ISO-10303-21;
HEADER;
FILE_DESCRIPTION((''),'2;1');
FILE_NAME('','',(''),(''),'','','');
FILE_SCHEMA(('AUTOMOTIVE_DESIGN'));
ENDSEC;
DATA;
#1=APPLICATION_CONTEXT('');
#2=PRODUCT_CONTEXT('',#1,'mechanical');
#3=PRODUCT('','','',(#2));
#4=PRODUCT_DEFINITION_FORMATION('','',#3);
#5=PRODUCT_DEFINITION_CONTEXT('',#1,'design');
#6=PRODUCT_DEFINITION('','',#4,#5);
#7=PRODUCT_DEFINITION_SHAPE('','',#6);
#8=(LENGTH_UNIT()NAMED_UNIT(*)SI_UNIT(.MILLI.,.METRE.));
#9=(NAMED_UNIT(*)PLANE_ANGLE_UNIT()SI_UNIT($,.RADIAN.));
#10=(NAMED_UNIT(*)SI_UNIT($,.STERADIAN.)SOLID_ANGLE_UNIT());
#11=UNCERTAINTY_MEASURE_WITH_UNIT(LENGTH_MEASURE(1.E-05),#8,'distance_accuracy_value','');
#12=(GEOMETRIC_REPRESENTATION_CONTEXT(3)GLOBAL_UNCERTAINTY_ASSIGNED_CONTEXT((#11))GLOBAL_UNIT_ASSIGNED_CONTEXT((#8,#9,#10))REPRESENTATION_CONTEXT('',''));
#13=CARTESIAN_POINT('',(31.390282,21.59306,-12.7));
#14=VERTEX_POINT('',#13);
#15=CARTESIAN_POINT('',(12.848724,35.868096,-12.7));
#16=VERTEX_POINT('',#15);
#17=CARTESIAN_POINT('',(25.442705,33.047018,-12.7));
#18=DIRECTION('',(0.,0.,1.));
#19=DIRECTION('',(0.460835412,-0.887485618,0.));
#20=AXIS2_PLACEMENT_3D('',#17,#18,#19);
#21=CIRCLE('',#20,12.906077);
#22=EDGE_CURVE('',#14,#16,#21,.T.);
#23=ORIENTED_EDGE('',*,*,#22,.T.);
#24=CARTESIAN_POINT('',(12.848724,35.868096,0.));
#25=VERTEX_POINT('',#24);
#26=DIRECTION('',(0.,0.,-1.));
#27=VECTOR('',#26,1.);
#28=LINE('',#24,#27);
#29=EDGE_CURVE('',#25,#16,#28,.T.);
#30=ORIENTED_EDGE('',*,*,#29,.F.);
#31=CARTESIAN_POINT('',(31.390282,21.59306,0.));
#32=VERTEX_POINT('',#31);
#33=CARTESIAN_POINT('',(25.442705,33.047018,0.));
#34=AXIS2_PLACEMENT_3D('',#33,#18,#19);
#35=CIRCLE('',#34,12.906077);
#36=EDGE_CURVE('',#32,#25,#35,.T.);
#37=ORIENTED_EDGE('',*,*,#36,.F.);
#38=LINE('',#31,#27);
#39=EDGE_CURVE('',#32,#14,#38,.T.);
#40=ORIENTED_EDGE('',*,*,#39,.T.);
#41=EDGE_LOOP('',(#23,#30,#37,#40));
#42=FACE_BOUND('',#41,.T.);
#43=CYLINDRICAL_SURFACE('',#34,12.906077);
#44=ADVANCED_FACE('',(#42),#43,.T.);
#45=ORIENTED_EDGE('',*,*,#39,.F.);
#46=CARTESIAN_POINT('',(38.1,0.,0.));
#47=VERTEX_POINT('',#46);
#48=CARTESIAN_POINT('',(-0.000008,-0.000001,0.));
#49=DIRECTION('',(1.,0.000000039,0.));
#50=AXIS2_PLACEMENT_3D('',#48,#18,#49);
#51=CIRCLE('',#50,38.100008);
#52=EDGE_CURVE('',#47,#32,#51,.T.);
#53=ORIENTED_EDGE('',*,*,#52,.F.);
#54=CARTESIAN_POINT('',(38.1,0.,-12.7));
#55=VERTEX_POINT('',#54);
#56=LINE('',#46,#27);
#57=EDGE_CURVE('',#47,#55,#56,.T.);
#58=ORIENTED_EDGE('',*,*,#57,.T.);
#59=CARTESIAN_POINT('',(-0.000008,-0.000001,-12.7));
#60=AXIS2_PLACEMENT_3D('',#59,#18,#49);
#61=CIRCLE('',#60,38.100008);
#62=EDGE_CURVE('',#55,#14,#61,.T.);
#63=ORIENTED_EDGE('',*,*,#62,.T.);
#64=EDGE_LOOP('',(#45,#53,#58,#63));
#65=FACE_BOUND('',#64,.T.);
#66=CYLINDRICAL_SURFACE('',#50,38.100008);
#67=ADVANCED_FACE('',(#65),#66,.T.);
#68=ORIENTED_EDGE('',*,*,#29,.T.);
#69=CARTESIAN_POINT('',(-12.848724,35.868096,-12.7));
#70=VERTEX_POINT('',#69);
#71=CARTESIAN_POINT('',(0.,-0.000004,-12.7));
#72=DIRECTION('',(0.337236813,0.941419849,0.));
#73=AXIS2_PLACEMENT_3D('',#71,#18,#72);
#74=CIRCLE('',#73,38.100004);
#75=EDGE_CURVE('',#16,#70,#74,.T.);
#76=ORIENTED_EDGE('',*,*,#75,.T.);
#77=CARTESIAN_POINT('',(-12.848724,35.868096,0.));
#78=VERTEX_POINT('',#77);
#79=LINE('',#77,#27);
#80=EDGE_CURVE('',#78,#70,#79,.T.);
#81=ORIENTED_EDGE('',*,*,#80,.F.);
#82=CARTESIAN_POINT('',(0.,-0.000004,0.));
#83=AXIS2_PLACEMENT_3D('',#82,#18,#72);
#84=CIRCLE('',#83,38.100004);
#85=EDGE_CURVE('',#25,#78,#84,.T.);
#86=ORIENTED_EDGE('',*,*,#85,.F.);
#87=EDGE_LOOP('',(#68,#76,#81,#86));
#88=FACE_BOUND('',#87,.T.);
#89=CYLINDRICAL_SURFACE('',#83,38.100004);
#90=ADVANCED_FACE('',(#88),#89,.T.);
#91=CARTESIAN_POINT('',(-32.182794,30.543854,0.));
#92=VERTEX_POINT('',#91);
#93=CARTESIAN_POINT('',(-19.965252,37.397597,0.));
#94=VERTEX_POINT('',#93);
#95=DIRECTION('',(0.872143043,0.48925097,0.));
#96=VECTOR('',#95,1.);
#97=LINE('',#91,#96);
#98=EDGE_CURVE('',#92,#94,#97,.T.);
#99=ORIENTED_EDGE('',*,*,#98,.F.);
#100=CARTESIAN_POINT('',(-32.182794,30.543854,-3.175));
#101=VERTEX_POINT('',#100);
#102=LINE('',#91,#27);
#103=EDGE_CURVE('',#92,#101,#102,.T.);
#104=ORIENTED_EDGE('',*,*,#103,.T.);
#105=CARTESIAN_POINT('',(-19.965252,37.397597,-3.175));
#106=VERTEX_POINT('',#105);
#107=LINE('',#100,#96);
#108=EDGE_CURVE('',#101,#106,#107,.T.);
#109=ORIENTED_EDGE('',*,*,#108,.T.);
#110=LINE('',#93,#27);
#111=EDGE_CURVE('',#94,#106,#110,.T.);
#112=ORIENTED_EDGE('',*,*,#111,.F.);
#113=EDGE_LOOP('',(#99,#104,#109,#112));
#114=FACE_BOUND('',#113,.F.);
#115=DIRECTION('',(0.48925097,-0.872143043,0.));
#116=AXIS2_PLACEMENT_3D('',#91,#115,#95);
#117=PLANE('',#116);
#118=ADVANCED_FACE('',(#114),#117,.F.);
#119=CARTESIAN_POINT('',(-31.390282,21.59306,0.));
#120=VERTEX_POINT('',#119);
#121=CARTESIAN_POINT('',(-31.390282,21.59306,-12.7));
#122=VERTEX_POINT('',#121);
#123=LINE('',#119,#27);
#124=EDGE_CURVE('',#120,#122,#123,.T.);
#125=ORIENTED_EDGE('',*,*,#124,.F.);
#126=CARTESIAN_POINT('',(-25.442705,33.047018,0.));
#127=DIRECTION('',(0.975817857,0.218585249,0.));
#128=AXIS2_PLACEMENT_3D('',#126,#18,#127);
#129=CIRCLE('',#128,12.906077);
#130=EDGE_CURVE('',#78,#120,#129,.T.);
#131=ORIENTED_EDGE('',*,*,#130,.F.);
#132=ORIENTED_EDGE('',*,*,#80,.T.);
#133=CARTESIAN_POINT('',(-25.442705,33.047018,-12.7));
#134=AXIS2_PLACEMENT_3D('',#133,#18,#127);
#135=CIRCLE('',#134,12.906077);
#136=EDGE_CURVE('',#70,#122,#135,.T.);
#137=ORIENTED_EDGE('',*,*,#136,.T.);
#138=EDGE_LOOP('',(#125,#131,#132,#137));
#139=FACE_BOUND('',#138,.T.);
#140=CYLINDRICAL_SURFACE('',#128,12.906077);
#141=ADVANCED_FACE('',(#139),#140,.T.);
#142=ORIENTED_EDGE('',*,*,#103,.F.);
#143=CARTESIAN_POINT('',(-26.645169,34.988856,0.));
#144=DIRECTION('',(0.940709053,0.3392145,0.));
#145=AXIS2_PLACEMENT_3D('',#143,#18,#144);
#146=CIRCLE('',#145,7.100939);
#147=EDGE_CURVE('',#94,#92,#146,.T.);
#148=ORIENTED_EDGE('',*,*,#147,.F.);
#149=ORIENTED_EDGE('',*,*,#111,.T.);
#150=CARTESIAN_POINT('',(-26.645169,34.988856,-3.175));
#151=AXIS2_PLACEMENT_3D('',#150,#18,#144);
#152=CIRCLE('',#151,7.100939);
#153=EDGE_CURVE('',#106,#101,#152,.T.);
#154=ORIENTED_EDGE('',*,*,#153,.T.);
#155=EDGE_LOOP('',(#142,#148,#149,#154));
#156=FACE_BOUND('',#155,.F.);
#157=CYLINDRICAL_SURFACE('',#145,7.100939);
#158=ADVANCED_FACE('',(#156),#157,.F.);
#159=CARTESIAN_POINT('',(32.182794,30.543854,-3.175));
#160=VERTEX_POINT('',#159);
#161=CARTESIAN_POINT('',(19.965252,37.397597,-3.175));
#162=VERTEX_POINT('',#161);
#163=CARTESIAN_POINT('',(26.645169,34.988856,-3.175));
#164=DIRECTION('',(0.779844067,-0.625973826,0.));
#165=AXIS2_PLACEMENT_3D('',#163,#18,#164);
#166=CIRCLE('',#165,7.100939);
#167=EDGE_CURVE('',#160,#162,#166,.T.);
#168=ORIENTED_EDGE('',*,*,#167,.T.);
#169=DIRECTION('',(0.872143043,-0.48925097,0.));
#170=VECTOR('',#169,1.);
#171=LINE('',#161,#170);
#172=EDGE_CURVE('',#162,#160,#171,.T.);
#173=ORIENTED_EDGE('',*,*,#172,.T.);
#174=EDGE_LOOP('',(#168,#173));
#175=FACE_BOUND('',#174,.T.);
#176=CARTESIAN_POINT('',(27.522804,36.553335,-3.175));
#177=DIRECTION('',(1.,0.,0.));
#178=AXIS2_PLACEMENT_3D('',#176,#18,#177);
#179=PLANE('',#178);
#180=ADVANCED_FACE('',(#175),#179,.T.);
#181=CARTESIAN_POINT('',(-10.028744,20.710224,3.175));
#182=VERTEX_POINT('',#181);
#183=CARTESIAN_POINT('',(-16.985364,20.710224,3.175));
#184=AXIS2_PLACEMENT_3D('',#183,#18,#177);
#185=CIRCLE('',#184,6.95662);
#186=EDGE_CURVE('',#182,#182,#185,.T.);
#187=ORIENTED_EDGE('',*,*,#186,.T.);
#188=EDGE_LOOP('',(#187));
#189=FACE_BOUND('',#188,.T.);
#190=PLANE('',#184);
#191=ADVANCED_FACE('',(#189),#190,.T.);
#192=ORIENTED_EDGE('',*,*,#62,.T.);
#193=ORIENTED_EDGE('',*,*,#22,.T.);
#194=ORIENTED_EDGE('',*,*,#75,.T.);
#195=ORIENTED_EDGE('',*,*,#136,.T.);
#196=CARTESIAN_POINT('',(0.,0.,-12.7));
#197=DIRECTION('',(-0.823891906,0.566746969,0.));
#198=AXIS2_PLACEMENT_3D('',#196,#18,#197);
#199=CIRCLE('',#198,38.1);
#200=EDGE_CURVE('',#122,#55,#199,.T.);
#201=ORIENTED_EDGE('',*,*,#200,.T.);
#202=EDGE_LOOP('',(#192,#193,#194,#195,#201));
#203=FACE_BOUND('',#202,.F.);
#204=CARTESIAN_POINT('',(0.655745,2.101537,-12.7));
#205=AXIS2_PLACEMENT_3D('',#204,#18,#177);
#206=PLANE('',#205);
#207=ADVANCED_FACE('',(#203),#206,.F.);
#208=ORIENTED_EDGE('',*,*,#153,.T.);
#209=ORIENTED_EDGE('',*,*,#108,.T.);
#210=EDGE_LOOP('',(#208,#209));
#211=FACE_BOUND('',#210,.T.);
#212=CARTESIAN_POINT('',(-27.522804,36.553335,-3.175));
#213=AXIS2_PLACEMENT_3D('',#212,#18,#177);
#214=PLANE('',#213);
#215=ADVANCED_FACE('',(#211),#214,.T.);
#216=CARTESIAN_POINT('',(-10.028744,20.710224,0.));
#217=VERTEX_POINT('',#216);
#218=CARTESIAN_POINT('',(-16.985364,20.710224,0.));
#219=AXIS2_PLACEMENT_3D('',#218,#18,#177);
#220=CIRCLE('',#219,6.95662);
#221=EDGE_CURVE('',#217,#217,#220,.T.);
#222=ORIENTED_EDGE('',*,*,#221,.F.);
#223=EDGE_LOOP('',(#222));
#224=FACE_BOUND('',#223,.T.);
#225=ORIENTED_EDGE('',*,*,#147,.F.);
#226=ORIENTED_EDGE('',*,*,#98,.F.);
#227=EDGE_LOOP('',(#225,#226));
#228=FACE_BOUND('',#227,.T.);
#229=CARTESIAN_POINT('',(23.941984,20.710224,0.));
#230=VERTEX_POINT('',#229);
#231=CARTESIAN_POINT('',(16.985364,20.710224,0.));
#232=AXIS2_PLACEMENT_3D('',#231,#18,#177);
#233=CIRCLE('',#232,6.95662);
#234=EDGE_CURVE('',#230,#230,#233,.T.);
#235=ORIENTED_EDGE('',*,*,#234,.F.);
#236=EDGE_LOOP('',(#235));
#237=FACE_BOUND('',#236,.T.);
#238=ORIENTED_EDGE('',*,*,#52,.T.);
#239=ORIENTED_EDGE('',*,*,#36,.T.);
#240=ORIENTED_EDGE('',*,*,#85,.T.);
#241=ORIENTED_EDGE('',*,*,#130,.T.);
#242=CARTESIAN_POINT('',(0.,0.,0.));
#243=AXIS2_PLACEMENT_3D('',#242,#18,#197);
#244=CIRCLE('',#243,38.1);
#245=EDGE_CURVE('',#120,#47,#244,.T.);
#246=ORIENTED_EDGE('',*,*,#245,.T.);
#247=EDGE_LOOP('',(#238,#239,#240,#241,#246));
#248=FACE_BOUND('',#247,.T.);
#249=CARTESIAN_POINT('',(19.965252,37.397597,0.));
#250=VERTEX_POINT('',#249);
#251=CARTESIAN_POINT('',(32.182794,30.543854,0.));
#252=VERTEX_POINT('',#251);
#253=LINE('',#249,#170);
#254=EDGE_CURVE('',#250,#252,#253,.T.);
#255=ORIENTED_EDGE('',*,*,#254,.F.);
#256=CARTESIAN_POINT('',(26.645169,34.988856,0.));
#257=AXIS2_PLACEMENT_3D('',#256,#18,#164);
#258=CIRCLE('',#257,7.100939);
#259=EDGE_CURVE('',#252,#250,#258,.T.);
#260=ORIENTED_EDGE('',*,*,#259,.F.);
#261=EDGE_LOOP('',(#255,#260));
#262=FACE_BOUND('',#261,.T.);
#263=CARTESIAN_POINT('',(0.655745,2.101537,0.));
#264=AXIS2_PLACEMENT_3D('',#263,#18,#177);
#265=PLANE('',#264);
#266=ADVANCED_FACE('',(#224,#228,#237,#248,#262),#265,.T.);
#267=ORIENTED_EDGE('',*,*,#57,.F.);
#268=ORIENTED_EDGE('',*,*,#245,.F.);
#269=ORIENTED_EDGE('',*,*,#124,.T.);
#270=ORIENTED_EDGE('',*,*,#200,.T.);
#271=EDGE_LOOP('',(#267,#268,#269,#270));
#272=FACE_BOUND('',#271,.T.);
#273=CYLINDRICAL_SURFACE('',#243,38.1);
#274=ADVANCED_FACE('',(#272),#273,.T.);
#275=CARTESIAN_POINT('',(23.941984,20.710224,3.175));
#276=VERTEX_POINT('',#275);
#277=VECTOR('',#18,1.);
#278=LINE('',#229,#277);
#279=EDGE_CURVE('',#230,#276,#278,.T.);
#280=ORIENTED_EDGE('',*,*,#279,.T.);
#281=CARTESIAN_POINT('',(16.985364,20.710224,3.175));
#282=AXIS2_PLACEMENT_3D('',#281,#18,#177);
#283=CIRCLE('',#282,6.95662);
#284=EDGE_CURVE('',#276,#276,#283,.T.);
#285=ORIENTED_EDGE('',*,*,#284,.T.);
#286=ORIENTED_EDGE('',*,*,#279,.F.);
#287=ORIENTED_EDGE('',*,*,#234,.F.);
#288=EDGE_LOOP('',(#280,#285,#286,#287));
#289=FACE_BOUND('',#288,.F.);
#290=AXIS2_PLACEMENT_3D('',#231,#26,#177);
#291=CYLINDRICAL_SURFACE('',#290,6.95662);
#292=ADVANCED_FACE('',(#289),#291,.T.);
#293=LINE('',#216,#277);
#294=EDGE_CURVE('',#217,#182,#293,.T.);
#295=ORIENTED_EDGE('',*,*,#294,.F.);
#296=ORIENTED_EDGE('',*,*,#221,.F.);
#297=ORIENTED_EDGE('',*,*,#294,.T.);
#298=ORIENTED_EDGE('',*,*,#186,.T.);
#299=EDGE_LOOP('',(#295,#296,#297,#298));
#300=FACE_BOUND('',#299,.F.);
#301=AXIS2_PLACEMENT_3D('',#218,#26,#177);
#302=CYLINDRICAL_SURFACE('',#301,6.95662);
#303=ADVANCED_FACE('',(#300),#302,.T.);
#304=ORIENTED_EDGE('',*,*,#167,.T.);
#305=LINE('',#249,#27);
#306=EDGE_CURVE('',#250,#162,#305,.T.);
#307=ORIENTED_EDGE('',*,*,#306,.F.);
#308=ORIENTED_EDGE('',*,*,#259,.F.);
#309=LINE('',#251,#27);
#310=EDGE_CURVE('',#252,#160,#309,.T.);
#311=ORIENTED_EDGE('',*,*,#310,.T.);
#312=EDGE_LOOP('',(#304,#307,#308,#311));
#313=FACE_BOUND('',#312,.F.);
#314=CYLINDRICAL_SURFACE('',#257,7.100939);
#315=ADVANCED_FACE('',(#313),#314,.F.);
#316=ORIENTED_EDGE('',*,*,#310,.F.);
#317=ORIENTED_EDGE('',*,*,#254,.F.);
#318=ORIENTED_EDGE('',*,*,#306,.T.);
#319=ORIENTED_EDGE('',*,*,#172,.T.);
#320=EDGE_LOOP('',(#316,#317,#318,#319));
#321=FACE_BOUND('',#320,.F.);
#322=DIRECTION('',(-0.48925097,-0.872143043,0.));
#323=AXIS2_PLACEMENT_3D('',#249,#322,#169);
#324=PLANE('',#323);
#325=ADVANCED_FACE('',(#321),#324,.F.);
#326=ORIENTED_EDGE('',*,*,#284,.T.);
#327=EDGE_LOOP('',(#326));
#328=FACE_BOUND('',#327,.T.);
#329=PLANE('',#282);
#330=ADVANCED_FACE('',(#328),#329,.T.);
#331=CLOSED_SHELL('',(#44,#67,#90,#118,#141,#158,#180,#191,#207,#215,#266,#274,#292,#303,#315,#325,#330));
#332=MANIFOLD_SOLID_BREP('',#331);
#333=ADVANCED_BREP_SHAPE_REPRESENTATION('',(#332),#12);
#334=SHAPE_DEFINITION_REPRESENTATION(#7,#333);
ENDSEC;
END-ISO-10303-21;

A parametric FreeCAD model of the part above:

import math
import FreeCAD as App
import Part
import Sketcher
Q = App.Units.Quantity

doc = App.newDocument("Part")
body = doc.addObject("PartDesign::Body", "Body")

# Sketch on XY plane
sketch1 = body.newObject("Sketcher::SketchObject", "Sketch")
sketch1.AttachmentSupport = (doc.getObject("XY_Plane"), [""])
sketch1.MapMode = "FlatFace"
sketch1.addGeometry([
    Part.ArcOfCircle(Part.Circle(App.Vector(0, 0, 0), App.Vector(0, 0, 1), 38), math.radians(145), math.radians(360)),  # 0
    Part.ArcOfCircle(Part.Circle(App.Vector(0, 0, 0), App.Vector(0, 0, 1), 38), math.radians(0), math.radians(35)),  # 1
    Part.ArcOfCircle(Part.Circle(App.Vector(25, 33, 0), App.Vector(0, 0, 1), 13), math.radians(-63), math.radians(167)),  # 2
    Part.ArcOfCircle(Part.Circle(App.Vector(0, 0, 0), App.Vector(0, 0, 1), 38), math.radians(70), math.radians(110)),  # 3
    Part.ArcOfCircle(Part.Circle(App.Vector(-25, 33, 0), App.Vector(0, 0, 1), 13), math.radians(13), math.radians(243)),  # 4
], False)
sketch1.addConstraint([
    Sketcher.Constraint("Tangent", 0, 2, 1, 1),
    Sketcher.Constraint("Coincident", 1, 2, 2, 1),
    Sketcher.Constraint("Coincident", 2, 2, 3, 1),
    Sketcher.Constraint("Coincident", 3, 2, 4, 1),
    Sketcher.Constraint("Coincident", 4, 2, 0, 1),
    Sketcher.Constraint("Coincident", 0, 3, -1, 1),
    Sketcher.Constraint("Coincident", 3, 3, -1, 1),
    Sketcher.Constraint("Equal", 2, 4),
    Sketcher.Constraint("Symmetric", 2, 3, 4, 3, -2),
    Sketcher.Constraint("PointOnObject", 0, 2, -1),
    Sketcher.Constraint("Horizontal", 1, 2, 4, 2),
    Sketcher.Constraint("Radius", 0, Q("1.5 in")),
    Sketcher.Constraint("Radius", 3, Q("1.5000002 in")),
    Sketcher.Constraint("Radius", 2, Q("12.906077 mm")),
    Sketcher.Constraint("DistanceY", 3, 3, 2, 2, Q("35.8681 mm")),
    Sketcher.Constraint("DistanceX", -1, 1, 1, 2, Q("31.390282 mm")),
])
pad1 = body.newObject("PartDesign::Pad", "Pad")
pad1.Profile = sketch1
pad1.Length = Q("0.5 in")
pad1.Reversed = True

# Sketch on XY plane
sketch2 = body.newObject("Sketcher::SketchObject", "Sketch001")
sketch2.AttachmentSupport = (doc.getObject("XY_Plane"), [""])
sketch2.MapMode = "FlatFace"
sketch2.addGeometry([
    Part.Circle(App.Vector(-17, 21, 0), App.Vector(0, 0, 1), 7),
    Part.Circle(App.Vector(17, 21, 0), App.Vector(0, 0, 1), 7),
], False)
sketch2.addConstraint([
    Sketcher.Constraint("Equal", 0, 1),
    Sketcher.Constraint("Symmetric", 0, 3, 1, 3, -2),
    Sketcher.Constraint("Diameter", 0, Q("13.91324 mm")),
    Sketcher.Constraint("DistanceX", 0, 3, -1, 1, Q("16.985364 mm")),
    Sketcher.Constraint("DistanceY", -1, 1, 0, 3, Q("20.710224 mm")),
])
pad2 = body.newObject("PartDesign::Pad", "Pad001")
pad2.Profile = sketch2
pad2.Length = Q("0.125 in")

# Sketch on XY plane
sketch3 = body.newObject("Sketcher::SketchObject", "Sketch002")
sketch3.AttachmentSupport = (doc.getObject("XY_Plane"), [""])
sketch3.MapMode = "FlatFace"
sketch3.addGeometry([
    Part.LineSegment(App.Vector(-32, 31, 0), App.Vector(-20, 37, 0)),
    Part.ArcOfCircle(Part.Circle(App.Vector(-27, 35, 0), App.Vector(0, 0, 1), 7), math.radians(20), math.radians(219)),
    Part.ArcOfCircle(Part.Circle(App.Vector(27, 35, 0), App.Vector(0, 0, 1), 7), math.radians(-39), math.radians(160)),
    Part.LineSegment(App.Vector(20, 37, 0), App.Vector(32, 31, 0)),
], False)
sketch3.addConstraint([
    Sketcher.Constraint("Coincident", 0, 1, 1, 2),
    Sketcher.Constraint("Coincident", 1, 1, 0, 2),
    Sketcher.Constraint("Coincident", 2, 1, 3, 2),
    Sketcher.Constraint("Coincident", 3, 1, 2, 2),
    Sketcher.Constraint("Equal", 1, 2),
    Sketcher.Constraint("Symmetric", 1, 3, 2, 3, -2),
    Sketcher.Constraint("Horizontal", 0, 1, 2, 1),
    Sketcher.Constraint("Horizontal", 1, 1, 3, 1),
    Sketcher.Constraint("Radius", 1, Q("7.100939 mm")),
    Sketcher.Constraint("DistanceY", 0, 1, 1, 3, Q("0.1750001 in")),
    Sketcher.Constraint("DistanceX", 1, 3, -1, 1, Q("26.645169 mm")),
    Sketcher.Constraint("DistanceX", 1, 1, -1, 1, Q("19.965252 mm")),
    Sketcher.Constraint("DistanceY", -1, 1, 1, 3, Q("34.988856 mm")),
])
pocket1 = body.newObject("PartDesign::Pocket", "Pocket")
pocket1.Profile = sketch3
pocket1.Length = Q("0.125 in")

doc.recompute()
